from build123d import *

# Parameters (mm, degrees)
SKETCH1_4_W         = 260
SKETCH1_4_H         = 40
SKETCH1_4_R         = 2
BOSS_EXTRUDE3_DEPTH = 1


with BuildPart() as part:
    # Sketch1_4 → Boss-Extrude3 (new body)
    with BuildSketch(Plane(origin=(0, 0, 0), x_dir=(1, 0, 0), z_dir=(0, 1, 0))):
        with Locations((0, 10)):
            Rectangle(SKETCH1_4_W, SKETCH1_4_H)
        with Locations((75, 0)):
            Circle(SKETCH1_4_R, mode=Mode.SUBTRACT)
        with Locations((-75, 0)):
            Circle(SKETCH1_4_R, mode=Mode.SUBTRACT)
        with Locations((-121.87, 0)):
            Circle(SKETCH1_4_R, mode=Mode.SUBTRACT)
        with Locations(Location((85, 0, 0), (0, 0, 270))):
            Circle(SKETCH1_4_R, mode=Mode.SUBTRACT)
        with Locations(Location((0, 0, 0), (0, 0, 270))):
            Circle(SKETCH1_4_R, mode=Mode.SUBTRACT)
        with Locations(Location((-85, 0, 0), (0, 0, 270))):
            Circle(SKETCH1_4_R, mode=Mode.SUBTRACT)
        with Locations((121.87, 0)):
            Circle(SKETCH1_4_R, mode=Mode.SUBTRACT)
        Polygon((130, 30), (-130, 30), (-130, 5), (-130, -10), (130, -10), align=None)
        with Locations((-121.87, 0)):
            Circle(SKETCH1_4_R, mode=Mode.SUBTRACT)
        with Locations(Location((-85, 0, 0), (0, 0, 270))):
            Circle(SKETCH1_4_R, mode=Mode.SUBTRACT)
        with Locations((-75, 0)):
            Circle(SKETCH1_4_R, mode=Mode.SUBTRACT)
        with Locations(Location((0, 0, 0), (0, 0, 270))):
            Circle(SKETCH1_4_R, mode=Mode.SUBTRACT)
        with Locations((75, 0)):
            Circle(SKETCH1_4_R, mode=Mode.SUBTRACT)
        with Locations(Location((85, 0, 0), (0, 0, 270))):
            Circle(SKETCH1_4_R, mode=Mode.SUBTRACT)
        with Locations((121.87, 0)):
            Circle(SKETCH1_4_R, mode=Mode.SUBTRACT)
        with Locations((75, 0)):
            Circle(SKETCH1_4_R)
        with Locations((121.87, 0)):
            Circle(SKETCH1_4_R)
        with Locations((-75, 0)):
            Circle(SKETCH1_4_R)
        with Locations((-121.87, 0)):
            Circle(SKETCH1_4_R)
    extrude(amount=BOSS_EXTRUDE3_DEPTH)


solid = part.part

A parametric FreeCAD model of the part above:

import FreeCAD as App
import Part
import Sketcher
Q = App.Units.Quantity

doc = App.newDocument("Part")
body = doc.addObject("PartDesign::Body", "Body")

sketch1 = body.newObject("Sketcher::SketchObject", "Sketch")
sketch1.AttachmentSupport = (doc.getObject("XZ_Plane"), [""])
sketch1.MapMode = "FlatFace"
sketch1.addGeometry([
    Part.LineSegment(App.Vector(-130, 10, 0), App.Vector(130, 10, 0)),
    Part.LineSegment(App.Vector(130, 10, 0), App.Vector(130, -30, 0)),
    Part.LineSegment(App.Vector(130, -30, 0), App.Vector(-130, -30, 0)),
    Part.LineSegment(App.Vector(-130, -30, 0), App.Vector(-130, 10, 0)),
    Part.Circle(App.Vector(-85, 0, 0), App.Vector(0, 0, 1), 2),
    Part.Circle(App.Vector(0, 0, 0), App.Vector(0, 0, 1), 2),
    Part.Circle(App.Vector(85, 0, 0), App.Vector(0, 0, 1), 2),
], False)
sketch1.addConstraint([
    Sketcher.Constraint("Coincident", 0, 2, 1, 1),
    Sketcher.Constraint("Coincident", 1, 2, 2, 1),
    Sketcher.Constraint("Coincident", 2, 2, 3, 1),
    Sketcher.Constraint("Coincident", 3, 2, 0, 1),
    Sketcher.Constraint("Horizontal", 0),
    Sketcher.Constraint("Vertical", 1),
    Sketcher.Constraint("Horizontal", 2),
    Sketcher.Constraint("Vertical", 3),
    Sketcher.Constraint("Coincident", 5, 3, -1, 1),
    Sketcher.Constraint("Equal", 4, 5),
    Sketcher.Constraint("Equal", 5, 6),
    Sketcher.Constraint("Symmetric", 4, 3, 6, 3, -1, 1),
    Sketcher.Constraint("PointOnObject", 4, 3, -1),
    Sketcher.Constraint("Diameter", 4, Q("4 mm")),
    Sketcher.Constraint("DistanceX", 0, 1, 0, 2, Q("260 mm")),
    Sketcher.Constraint("DistanceY", 1, 2, 1, 1, Q("40 mm")),
    Sketcher.Constraint("DistanceX", 4, 3, -1, 1, Q("85 mm")),
    Sketcher.Constraint("DistanceX", -1, 1, 0, 2, Q("130 mm")),
    Sketcher.Constraint("DistanceY", -1, 1, 0, 2, Q("10 mm")),
])
pad1 = body.newObject("PartDesign::Pad", "Pad")
pad1.Profile = sketch1
pad1.Length = 1
pad1.Reversed = True

doc.recompute()
